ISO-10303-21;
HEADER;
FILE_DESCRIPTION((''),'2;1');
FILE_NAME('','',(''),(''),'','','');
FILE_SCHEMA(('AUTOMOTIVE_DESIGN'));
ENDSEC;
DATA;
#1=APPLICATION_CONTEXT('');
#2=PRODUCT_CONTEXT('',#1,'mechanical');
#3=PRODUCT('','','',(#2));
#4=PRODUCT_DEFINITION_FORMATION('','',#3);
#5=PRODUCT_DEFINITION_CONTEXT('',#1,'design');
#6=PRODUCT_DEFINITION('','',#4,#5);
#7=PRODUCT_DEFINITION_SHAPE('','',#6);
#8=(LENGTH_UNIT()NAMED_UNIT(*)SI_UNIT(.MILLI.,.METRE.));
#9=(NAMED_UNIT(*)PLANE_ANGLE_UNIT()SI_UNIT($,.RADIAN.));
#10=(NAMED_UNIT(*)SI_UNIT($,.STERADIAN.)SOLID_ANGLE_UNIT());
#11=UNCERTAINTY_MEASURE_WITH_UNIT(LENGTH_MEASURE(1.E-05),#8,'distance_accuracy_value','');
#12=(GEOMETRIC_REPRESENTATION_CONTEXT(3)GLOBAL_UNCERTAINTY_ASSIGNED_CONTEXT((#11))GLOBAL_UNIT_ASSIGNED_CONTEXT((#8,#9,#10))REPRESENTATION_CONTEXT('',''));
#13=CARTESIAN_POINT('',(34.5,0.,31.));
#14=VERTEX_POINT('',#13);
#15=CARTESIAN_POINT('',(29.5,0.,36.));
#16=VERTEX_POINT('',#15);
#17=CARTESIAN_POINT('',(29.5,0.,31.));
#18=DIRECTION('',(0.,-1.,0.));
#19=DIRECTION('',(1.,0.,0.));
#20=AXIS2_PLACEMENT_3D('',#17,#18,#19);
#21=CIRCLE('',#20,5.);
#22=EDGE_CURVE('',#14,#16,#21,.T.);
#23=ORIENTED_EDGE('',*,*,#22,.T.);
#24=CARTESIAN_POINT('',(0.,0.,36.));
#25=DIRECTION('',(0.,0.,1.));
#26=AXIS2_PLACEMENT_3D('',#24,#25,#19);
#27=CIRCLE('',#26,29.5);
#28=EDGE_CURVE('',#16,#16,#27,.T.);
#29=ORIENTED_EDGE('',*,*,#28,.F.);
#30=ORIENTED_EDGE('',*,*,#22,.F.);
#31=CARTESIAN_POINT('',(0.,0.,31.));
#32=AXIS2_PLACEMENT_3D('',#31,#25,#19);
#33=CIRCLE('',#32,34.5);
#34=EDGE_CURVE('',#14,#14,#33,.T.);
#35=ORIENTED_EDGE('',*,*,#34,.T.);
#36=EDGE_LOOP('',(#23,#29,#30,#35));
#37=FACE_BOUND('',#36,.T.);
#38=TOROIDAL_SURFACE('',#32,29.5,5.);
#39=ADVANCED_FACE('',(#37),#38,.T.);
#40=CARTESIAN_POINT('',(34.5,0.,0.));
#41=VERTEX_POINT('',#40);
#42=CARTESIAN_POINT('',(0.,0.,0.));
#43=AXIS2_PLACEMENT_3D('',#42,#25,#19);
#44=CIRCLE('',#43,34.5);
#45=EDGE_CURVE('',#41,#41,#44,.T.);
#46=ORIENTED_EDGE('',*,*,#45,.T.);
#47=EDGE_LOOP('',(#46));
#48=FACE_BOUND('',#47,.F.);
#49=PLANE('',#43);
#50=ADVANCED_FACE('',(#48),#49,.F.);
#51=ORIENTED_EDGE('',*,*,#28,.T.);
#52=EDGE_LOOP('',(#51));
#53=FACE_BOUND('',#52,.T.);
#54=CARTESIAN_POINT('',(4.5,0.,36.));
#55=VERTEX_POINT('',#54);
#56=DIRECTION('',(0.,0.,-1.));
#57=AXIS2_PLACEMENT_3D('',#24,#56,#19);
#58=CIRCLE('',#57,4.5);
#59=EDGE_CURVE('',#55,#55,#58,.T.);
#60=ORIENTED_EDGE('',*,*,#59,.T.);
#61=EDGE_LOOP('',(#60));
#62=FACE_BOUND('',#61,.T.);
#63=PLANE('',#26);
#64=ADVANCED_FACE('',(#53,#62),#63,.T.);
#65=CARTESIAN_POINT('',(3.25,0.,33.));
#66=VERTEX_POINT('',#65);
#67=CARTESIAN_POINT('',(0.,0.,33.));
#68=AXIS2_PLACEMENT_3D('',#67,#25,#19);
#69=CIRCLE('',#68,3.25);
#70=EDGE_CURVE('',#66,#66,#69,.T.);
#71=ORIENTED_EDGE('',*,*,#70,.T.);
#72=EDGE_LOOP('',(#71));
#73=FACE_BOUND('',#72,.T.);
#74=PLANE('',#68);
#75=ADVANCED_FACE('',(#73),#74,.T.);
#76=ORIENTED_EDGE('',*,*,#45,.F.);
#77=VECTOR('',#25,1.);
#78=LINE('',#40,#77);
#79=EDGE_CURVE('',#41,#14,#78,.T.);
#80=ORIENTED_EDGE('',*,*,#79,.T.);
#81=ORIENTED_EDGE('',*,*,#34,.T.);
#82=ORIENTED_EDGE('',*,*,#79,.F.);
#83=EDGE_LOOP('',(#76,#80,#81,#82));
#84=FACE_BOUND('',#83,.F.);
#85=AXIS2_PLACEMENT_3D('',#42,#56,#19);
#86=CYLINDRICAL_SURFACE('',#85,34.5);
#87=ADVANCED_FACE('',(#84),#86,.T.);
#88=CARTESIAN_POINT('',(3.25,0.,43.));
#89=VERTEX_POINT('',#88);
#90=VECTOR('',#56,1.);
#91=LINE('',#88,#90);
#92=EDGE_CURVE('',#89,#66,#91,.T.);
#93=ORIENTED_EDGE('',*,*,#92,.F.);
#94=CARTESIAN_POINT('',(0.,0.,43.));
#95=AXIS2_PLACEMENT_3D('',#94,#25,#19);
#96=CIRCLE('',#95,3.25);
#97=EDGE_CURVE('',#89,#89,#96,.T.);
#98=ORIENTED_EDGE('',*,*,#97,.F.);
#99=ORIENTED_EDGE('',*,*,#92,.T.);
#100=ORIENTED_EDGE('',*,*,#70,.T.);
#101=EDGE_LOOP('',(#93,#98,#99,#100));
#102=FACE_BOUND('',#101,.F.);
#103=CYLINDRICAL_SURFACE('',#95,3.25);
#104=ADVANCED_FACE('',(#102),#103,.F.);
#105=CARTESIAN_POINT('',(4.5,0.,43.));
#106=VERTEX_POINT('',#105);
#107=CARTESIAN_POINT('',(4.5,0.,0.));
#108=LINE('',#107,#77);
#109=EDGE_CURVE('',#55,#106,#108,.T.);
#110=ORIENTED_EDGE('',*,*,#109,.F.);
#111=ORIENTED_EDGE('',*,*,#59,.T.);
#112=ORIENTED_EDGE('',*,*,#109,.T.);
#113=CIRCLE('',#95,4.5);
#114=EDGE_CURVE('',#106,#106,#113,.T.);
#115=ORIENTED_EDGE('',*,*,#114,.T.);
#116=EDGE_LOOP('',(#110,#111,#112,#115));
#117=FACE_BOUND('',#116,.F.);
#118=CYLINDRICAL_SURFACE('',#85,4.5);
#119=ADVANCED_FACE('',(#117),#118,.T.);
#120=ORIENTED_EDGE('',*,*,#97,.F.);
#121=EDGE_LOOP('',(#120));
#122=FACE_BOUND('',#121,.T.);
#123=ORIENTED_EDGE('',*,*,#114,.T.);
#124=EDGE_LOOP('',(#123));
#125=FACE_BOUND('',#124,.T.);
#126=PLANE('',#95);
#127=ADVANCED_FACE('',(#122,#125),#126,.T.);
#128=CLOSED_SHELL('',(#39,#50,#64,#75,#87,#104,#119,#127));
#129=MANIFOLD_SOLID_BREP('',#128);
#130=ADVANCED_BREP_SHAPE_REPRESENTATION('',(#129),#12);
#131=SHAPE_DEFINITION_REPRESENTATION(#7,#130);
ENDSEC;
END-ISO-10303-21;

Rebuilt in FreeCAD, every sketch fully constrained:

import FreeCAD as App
import Part
import Sketcher
Q = App.Units.Quantity


def edges_at(feature, points):
    """Names of the edges that pass closest to the given points."""
    edges = feature.Shape.Edges
    near = lambda p: min(range(len(edges)), key=lambda i: edges[i].distToShape(Part.Vertex(*p))[0])
    return sorted({f"Edge{near(p) + 1}" for p in points})

doc = App.newDocument("Part")
body = doc.addObject("PartDesign::Body", "Body")

# Sketch on XY plane
sketch1 = body.newObject("Sketcher::SketchObject", "Sketch")
sketch1.AttachmentSupport = (doc.getObject("XY_Plane"), [""])
sketch1.MapMode = "FlatFace"
sketch1.addGeometry(Part.Circle(App.Vector(0, 0, 0), App.Vector(0, 0, 1), 3.2), False)
sketch1.addConstraint(Sketcher.Constraint("Coincident", 0, 3, -1, 1))
sketch1.addConstraint(Sketcher.Constraint("Diameter", 0, Q("6.5 mm")))
pad1 = body.newObject("PartDesign::Pad", "Pad")
pad1.Profile = sketch1
pad1.Length = 10

# Sketch on XY plane
sketch2 = body.newObject("Sketcher::SketchObject", "Sketch001")
sketch2.AttachmentSupport = (doc.getObject("XY_Plane"), [""])
sketch2.MapMode = "FlatFace"
sketch2.addGeometry(Part.Circle(App.Vector(0, 0, 0), App.Vector(0, 0, 1), 34), False)
sketch2.addConstraint(Sketcher.Constraint("Coincident", 0, 3, -1, 1))
sketch2.addConstraint(Sketcher.Constraint("Diameter", 0, Q("69 mm")))
pad2 = body.newObject("PartDesign::Pad", "Pad001")
pad2.Profile = sketch2
pad2.Length = 36

# Sketch on XY plane
sketch3 = body.newObject("Sketcher::SketchObject", "Sketch002")
sketch3.AttachmentSupport = (doc.getObject("XY_Plane"), [""])
sketch3.MapMode = "FlatFace"
sketch3.addGeometry(Part.Circle(App.Vector(0, 0, 0), App.Vector(0, 0, 1), 4.5), False)
sketch3.addConstraint(Sketcher.Constraint("Coincident", 0, 3, -1, 1))
sketch3.addConstraint(Sketcher.Constraint("Diameter", 0, Q("9 mm")))
pad3 = body.newObject("PartDesign::Pad", "Pad002")
pad3.Profile = sketch3
pad3.Length = 43
doc.recompute()

fillet = body.newObject("PartDesign::Fillet", "Fillet")
fillet.Base = (pad3, edges_at(pad3, [(-34.5, 0, 36)]))
fillet.Radius = 5

# Sketch on XY plane
sketch4 = body.newObject("Sketcher::SketchObject", "Sketch003")
sketch4.AttachmentSupport = (doc.getObject("XY_Plane"), [""])
sketch4.MapMode = "FlatFace"
sketch4.AttachmentOffset = App.Placement(App.Vector(0, 0, 43), App.Rotation())
sketch4.addGeometry(Part.Circle(App.Vector(0, 0, 0), App.Vector(0, 0, 1), 3.2), False)
sketch4.addConstraint(Sketcher.Constraint("Coincident", 0, 3, -1, 1))
sketch4.addConstraint(Sketcher.Constraint("Diameter", 0, Q("6.5 mm")))
pocket1 = body.newObject("PartDesign::Pocket", "Pocket")
pocket1.Profile = sketch4
pocket1.Length = 10

doc.recompute()
